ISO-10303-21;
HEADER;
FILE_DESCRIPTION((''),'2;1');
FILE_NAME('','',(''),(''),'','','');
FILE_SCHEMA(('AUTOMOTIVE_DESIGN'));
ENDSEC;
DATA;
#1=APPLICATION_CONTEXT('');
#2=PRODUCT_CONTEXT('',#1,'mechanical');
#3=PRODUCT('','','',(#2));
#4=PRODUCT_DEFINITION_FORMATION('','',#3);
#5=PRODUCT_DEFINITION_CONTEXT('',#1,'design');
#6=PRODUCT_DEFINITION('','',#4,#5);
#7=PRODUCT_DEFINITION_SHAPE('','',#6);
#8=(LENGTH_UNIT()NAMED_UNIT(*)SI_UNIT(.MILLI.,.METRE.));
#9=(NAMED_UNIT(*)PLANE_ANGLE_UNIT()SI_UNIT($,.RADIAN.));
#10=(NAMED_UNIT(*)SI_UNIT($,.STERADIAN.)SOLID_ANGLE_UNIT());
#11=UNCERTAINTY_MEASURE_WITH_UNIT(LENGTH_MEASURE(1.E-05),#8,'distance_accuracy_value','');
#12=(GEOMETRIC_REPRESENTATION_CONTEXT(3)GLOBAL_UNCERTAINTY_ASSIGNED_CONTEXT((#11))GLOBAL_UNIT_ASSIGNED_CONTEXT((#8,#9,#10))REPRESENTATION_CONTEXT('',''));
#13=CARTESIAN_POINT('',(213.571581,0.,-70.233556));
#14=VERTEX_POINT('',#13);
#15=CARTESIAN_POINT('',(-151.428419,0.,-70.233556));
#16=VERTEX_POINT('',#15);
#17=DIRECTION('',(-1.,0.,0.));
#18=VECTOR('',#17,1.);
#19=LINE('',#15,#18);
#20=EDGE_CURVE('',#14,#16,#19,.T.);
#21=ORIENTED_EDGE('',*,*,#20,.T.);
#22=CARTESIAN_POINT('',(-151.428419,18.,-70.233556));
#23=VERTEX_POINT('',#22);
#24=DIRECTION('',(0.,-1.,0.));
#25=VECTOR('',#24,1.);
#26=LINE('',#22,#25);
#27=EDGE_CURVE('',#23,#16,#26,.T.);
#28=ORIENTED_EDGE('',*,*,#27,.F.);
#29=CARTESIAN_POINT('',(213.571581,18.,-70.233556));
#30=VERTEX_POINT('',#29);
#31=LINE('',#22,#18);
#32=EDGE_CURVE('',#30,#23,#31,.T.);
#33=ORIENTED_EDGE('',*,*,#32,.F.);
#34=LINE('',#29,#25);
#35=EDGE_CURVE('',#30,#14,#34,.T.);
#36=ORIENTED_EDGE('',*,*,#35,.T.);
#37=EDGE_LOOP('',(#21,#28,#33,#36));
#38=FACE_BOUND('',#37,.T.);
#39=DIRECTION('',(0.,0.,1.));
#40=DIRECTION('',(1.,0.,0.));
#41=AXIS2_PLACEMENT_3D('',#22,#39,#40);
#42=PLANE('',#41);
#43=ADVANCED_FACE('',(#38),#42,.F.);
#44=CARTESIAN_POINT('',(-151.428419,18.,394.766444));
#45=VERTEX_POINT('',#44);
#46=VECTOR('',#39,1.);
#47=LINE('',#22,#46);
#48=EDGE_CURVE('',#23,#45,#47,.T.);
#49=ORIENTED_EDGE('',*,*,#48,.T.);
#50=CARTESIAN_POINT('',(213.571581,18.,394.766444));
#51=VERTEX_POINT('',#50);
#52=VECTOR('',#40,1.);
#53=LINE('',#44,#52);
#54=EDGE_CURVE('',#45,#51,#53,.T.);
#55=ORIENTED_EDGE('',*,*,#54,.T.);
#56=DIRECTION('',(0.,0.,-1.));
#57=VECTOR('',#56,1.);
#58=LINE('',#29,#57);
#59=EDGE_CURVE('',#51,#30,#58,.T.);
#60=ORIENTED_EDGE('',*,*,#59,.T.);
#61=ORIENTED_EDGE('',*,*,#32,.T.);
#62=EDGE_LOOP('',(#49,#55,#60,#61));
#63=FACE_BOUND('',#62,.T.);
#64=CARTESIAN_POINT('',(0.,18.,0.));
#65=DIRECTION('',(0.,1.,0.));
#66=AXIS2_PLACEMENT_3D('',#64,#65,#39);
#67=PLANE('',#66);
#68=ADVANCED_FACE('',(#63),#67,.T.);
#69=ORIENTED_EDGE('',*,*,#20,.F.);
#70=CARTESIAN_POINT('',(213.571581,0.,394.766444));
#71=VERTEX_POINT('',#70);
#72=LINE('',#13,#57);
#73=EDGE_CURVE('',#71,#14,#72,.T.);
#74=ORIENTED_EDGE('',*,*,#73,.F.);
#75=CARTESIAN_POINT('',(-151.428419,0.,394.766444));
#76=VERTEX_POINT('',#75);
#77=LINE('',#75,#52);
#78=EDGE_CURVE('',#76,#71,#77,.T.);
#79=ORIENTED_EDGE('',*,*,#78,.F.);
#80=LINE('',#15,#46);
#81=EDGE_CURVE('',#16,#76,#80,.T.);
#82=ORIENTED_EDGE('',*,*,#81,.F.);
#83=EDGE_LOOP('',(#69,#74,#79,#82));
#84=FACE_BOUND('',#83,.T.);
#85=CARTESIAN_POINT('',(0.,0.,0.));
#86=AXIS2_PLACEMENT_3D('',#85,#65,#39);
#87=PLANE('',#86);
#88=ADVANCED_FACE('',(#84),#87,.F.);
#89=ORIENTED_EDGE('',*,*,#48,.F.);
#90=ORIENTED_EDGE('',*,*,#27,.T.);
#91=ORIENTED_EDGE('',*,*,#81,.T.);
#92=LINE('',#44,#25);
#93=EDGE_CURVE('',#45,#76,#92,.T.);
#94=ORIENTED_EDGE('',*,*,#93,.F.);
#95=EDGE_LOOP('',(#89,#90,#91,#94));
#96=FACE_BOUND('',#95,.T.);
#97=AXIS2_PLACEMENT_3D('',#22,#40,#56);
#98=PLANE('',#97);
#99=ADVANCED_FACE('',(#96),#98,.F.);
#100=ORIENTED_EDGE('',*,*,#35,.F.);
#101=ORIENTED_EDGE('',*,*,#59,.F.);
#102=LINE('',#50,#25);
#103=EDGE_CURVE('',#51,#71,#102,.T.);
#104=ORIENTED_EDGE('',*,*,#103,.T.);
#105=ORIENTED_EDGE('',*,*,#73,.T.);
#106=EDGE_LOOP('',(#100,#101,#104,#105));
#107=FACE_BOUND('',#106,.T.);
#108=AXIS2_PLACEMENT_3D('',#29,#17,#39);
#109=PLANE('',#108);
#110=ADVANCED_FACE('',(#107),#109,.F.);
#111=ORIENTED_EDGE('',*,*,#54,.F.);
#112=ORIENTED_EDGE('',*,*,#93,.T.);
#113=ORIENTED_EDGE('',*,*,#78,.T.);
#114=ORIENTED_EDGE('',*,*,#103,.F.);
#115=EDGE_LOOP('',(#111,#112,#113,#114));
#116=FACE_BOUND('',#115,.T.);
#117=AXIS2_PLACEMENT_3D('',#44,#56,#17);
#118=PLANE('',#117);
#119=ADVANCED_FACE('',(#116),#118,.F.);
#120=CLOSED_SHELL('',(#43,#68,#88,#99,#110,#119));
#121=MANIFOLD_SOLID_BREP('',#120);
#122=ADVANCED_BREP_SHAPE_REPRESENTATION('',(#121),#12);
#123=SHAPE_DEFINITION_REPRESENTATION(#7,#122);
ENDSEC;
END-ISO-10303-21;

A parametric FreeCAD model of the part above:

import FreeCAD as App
import Part
import Sketcher

V = App.Vector
Q = App.Units.Quantity


def add_polygon(sketch, points):
    """Adds a closed chain of lines whose ends are joined by coincident constraints."""
    first, n = sketch.GeometryCount, len(points)
    for a, b in zip(points, points[1:] + points[:1]):
        sketch.addGeometry(Part.LineSegment(App.Vector(*a, 0), App.Vector(*b, 0)), False)
    for i in range(n):
        sketch.addConstraint(Sketcher.Constraint("Coincident", first + i, 2, first + (i + 1) % n, 1))

doc = App.newDocument("Part")
body = doc.addObject("PartDesign::Body", "Body")

sketch1 = doc.addObject("Sketcher::SketchObject", "Sketch")
body.addObject(sketch1)
sketch1.AttachmentSupport = (doc.XZ_Plane, [""])
sketch1.MapMode = "FlatFace"
add_polygon(sketch1, [(-151, -70), (-151, 395), (214, 395), (214, -70)])
sketch1.addConstraint([
    Sketcher.Constraint("Vertical", 0),
    Sketcher.Constraint("Horizontal", 1),
    Sketcher.Constraint("Vertical", 2),
    Sketcher.Constraint("Horizontal", 3),
    Sketcher.Constraint("DistanceX", 1, 1, 1, 2, Q("365 mm")),
    Sketcher.Constraint("DistanceY", 0, 1, 0, 2, Q("465 mm")),
    Sketcher.Constraint("DistanceX", 0, 2, -1, 1, Q("151.428419 mm")),
    Sketcher.Constraint("DistanceY", -1, 1, 0, 2, Q("394.766444 mm")),
])
pad1 = doc.addObject("PartDesign::Pad", "Pad")
body.addObject(pad1)
pad1.Profile = sketch1
pad1.Length = 18
pad1.Reversed = True

doc.recompute()
